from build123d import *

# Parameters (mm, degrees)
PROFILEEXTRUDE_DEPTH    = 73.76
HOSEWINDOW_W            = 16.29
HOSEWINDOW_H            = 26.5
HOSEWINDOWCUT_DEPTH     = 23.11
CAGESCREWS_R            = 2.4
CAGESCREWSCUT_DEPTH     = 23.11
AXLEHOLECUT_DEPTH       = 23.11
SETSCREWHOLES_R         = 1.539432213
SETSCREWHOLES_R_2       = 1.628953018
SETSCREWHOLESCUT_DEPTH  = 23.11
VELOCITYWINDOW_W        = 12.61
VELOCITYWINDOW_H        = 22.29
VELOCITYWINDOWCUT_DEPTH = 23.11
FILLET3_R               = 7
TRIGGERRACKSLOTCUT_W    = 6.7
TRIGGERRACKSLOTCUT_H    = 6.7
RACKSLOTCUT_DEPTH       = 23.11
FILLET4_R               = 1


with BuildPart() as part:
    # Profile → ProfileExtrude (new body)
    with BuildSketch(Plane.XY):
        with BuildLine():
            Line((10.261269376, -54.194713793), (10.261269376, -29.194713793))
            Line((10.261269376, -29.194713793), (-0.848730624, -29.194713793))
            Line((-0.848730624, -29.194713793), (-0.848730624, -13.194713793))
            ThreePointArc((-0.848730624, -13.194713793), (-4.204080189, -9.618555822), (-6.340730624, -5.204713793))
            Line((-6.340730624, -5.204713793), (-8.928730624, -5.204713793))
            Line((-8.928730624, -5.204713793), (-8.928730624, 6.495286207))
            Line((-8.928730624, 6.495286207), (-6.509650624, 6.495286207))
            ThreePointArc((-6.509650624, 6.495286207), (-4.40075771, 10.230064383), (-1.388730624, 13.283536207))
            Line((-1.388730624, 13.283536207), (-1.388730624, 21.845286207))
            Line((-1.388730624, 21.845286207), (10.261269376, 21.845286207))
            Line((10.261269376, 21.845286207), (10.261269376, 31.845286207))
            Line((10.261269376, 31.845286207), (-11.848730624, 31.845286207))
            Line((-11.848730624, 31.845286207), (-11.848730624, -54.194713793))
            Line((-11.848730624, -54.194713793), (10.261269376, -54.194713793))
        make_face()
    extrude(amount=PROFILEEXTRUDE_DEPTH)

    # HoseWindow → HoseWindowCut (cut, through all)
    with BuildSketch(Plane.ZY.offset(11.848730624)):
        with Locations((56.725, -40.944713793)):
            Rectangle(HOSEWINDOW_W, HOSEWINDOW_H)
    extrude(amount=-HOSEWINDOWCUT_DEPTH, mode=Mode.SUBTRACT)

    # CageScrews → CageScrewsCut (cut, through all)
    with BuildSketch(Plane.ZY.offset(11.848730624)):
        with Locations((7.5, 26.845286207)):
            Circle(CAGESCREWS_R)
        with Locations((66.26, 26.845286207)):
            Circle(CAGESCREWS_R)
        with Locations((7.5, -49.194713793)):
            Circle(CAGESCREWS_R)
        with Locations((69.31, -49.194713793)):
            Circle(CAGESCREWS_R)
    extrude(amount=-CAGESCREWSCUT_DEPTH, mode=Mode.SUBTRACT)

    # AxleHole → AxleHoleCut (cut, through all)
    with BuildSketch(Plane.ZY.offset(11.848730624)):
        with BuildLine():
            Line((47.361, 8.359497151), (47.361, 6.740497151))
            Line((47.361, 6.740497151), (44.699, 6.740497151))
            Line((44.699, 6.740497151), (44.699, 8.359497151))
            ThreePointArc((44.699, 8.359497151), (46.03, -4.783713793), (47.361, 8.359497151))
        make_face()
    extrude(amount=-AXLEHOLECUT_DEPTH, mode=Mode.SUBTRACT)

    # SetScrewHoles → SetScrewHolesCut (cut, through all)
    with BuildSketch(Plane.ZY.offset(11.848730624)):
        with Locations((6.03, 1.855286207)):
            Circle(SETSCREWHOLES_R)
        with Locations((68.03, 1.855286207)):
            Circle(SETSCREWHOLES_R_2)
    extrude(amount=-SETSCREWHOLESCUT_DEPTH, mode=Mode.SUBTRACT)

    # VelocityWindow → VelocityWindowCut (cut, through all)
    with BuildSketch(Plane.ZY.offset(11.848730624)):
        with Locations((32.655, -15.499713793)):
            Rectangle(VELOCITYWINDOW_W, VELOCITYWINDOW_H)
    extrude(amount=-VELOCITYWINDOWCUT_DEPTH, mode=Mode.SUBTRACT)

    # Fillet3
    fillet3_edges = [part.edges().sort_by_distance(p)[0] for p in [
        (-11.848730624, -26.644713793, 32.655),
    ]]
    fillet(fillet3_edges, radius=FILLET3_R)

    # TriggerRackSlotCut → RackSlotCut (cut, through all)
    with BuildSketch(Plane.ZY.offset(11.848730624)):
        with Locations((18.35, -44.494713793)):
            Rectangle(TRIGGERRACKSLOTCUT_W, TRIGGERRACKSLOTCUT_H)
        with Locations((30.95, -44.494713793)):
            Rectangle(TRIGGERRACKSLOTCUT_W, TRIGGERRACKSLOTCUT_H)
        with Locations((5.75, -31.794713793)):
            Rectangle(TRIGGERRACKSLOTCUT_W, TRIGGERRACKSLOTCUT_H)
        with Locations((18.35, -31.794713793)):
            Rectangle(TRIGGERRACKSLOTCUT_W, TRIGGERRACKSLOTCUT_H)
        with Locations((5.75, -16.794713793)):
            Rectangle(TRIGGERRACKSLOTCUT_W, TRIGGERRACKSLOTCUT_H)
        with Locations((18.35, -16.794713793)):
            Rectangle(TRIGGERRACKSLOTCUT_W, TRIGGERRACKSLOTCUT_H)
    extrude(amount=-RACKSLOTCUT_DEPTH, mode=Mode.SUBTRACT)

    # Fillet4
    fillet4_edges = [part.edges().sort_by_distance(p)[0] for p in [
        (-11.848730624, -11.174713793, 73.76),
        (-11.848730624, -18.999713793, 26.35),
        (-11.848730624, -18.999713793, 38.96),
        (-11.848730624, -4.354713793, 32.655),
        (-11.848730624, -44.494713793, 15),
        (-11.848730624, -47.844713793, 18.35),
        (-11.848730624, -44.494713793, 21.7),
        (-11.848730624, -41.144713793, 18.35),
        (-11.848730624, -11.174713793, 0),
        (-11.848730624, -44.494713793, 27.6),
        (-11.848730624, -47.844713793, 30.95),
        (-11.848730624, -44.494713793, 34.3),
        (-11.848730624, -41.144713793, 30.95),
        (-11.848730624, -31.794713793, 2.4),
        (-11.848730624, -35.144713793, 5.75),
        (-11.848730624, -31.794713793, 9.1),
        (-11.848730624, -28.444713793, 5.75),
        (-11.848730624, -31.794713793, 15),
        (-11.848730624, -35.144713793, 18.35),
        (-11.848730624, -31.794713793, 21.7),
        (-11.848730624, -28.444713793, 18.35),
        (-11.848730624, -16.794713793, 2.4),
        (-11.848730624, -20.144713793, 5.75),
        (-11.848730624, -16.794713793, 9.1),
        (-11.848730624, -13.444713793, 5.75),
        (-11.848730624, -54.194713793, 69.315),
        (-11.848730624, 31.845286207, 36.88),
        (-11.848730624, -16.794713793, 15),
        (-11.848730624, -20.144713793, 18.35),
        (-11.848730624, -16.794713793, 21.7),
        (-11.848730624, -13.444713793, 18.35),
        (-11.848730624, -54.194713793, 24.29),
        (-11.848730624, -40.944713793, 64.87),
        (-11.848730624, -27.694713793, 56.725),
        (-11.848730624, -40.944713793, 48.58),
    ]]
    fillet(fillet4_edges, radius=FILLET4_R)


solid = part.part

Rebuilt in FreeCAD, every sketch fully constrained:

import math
import FreeCAD as App
import Part
import Sketcher

V = App.Vector
Q = App.Units.Quantity


def edges_at(feature, points):
    """Names of the edges that pass closest to the given points."""
    edges = feature.Shape.Edges
    near = lambda p: min(range(len(edges)), key=lambda i: edges[i].distToShape(Part.Vertex(*p))[0])
    return sorted({f"Edge{near(p) + 1}" for p in points})


def add_polygon(sketch, points):
    """Adds a closed chain of lines whose ends are joined by coincident constraints."""
    first, n = sketch.GeometryCount, len(points)
    for a, b in zip(points, points[1:] + points[:1]):
        sketch.addGeometry(Part.LineSegment(App.Vector(*a, 0), App.Vector(*b, 0)), False)
    for i in range(n):
        sketch.addConstraint(Sketcher.Constraint("Coincident", first + i, 2, first + (i + 1) % n, 1))

doc = App.newDocument("Part")
body = doc.addObject("PartDesign::Body", "Body")

sketch1 = doc.addObject("Sketcher::SketchObject", "Sketch")
body.addObject(sketch1)
sketch1.AttachmentSupport = (doc.XY_Plane, [""])
sketch1.MapMode = "FlatFace"
sketch1.addGeometry(Part.LineSegment(V(10.3, -54.2, 0), V(10.3, -29.2, 0)), False)
sketch1.addGeometry(Part.LineSegment(V(10.3, -29.2, 0), V(-0.8, -29.2, 0)), False)
sketch1.addGeometry(Part.LineSegment(V(-0.8, -29.2, 0), V(-0.8, -13.2, 0)), False)
sketch1.addGeometry(Part.ArcOfCircle(Part.Circle(V(9.2, -0.4, 0), V(0, 0, 1), 16.3), math.radians(-163), math.radians(-128)), False)
sketch1.addGeometry(Part.LineSegment(V(-6.3, -5.2, 0), V(-8.9, -5.2, 0)), False)
sketch1.addGeometry(Part.LineSegment(V(-8.9, -5.2, 0), V(-8.9, 6.5, 0)), False)
sketch1.addGeometry(Part.LineSegment(V(-8.9, 6.5, 0), V(-6.5, 6.5, 0)), False)
sketch1.addGeometry(Part.ArcOfCircle(Part.Circle(V(8.6, 0.4, 0), V(0, 0, 1), 16.3), math.radians(128), math.radians(158)), False)
sketch1.addGeometry(Part.LineSegment(V(-1.4, 13.3, 0), V(-1.4, 21.8, 0)), False)
sketch1.addGeometry(Part.LineSegment(V(-1.4, 21.8, 0), V(10.3, 21.8, 0)), False)
sketch1.addGeometry(Part.LineSegment(V(10.3, 21.8, 0), V(10.3, 31.8, 0)), False)
sketch1.addGeometry(Part.LineSegment(V(10.3, 31.8, 0), V(-11.8, 31.8, 0)), False)
sketch1.addGeometry(Part.LineSegment(V(-11.8, 31.8, 0), V(-11.8, -54.2, 0)), False)
sketch1.addGeometry(Part.LineSegment(V(-11.8, -54.2, 0), V(10.3, -54.2, 0)), False)
sketch1.addConstraint(Sketcher.Constraint("Coincident", 0, 2, 1, 1))
sketch1.addConstraint(Sketcher.Constraint("Coincident", 1, 2, 2, 1))
sketch1.addConstraint(Sketcher.Constraint("Coincident", 2, 2, 3, 2))
sketch1.addConstraint(Sketcher.Constraint("Coincident", 3, 1, 4, 1))
sketch1.addConstraint(Sketcher.Constraint("Coincident", 4, 2, 5, 1))
sketch1.addConstraint(Sketcher.Constraint("Coincident", 5, 2, 6, 1))
sketch1.addConstraint(Sketcher.Constraint("Coincident", 6, 2, 7, 2))
sketch1.addConstraint(Sketcher.Constraint("Coincident", 7, 1, 8, 1))
sketch1.addConstraint(Sketcher.Constraint("Coincident", 8, 2, 9, 1))
sketch1.addConstraint(Sketcher.Constraint("Coincident", 9, 2, 10, 1))
sketch1.addConstraint(Sketcher.Constraint("Coincident", 10, 2, 11, 1))
sketch1.addConstraint(Sketcher.Constraint("Coincident", 11, 2, 12, 1))
sketch1.addConstraint(Sketcher.Constraint("Coincident", 12, 2, 13, 1))
sketch1.addConstraint(Sketcher.Constraint("Coincident", 13, 2, 0, 1))
sketch1.addConstraint(Sketcher.Constraint("Vertical", 0))
sketch1.addConstraint(Sketcher.Constraint("Horizontal", 1))
sketch1.addConstraint(Sketcher.Constraint("Vertical", 2))
sketch1.addConstraint(Sketcher.Constraint("Horizontal", 4))
sketch1.addConstraint(Sketcher.Constraint("Vertical", 5))
sketch1.addConstraint(Sketcher.Constraint("Horizontal", 6))
sketch1.addConstraint(Sketcher.Constraint("Vertical", 8))
sketch1.addConstraint(Sketcher.Constraint("Horizontal", 9))
sketch1.addConstraint(Sketcher.Constraint("Vertical", 10))
sketch1.addConstraint(Sketcher.Constraint("Horizontal", 11))
sketch1.addConstraint(Sketcher.Constraint("Vertical", 12))
sketch1.addConstraint(Sketcher.Constraint("Horizontal", 13))
sketch1.addConstraint(Sketcher.Constraint("Equal", 3, 7))
sketch1.addConstraint(Sketcher.Constraint("Vertical", 0, 2, 9, 2))
sketch1.addConstraint(Sketcher.Constraint("DistanceY", 0, 1, 0, 2, Q("25 mm")))
sketch1.addConstraint(Sketcher.Constraint("DistanceY", 2, 1, 2, 2, Q("16 mm")))
sketch1.addConstraint(Sketcher.Constraint("DistanceY", 10, 1, 10, 2, Q("10 mm")))
sketch1.addConstraint(Sketcher.Constraint("DistanceY", 5, 1, 5, 2, Q("11.7 mm")))
sketch1.addConstraint(Sketcher.Constraint("Radius", 3, Q("16.261 mm")))
sketch1.addConstraint(Sketcher.Constraint("DistanceX", 12, 2, 1, 2, Q("11 mm")))
sketch1.addConstraint(Sketcher.Constraint("DistanceX", 1, 2, 1, 1, Q("11.11 mm")))
sketch1.addConstraint(Sketcher.Constraint("DistanceX", 9, 1, 9, 2, Q("11.65 mm")))
sketch1.addConstraint(Sketcher.Constraint("DistanceY", 12, 2, 12, 1, Q("86.04 mm")))
sketch1.addConstraint(Sketcher.Constraint("DistanceX", 4, 2, 4, 1, Q("2.588 mm")))
sketch1.addConstraint(Sketcher.Constraint("DistanceY", 2, 2, 3, 1, Q("7.99 mm")))
sketch1.addConstraint(Sketcher.Constraint("DistanceX", 4, 2, 2, 2, Q("8.08 mm")))
sketch1.addConstraint(Sketcher.Constraint("DistanceX", 6, 1, 6, 2, Q("2.41908 mm")))
sketch1.addConstraint(Sketcher.Constraint("DistanceY", 8, 1, 8, 2, Q("8.56175 mm")))
sketch1.addConstraint(Sketcher.Constraint("DistanceX", -1, 1, 7, 3, Q("8.580699 mm")))
sketch1.addConstraint(Sketcher.Constraint("DistanceY", 3, 3, -1, 1, Q("0.407512 mm")))
pad1 = doc.addObject("PartDesign::Pad", "Pad")
body.addObject(pad1)
pad1.Profile = sketch1
pad1.Length = 73.76

sketch2 = doc.addObject("Sketcher::SketchObject", "Sketch001")
body.addObject(sketch2)
sketch2.AttachmentSupport = (doc.YZ_Plane, [""])
sketch2.MapMode = "FlatFace"
sketch2.AttachmentOffset = App.Placement(V(0, 0, -11.848731), App.Rotation())
add_polygon(sketch2, [(-28, 49), (-54, 49), (-54, 65), (-28, 65)])
sketch2.addConstraint(Sketcher.Constraint("Horizontal", 0))
sketch2.addConstraint(Sketcher.Constraint("Vertical", 1))
sketch2.addConstraint(Sketcher.Constraint("Horizontal", 2))
sketch2.addConstraint(Sketcher.Constraint("Vertical", 3))
sketch2.addConstraint(Sketcher.Constraint("DistanceX", 0, 2, 0, 1, Q("26.5 mm")))
sketch2.addConstraint(Sketcher.Constraint("DistanceY", 1, 1, 1, 2, Q("16.29 mm")))
sketch2.addConstraint(Sketcher.Constraint("DistanceY", -1, 1, 0, 2, Q("48.58 mm")))
sketch2.addConstraint(Sketcher.Constraint("DistanceX", 0, 2, -1, 1, Q("54.194714 mm")))
pocket1 = doc.addObject("PartDesign::Pocket", "Pocket")
body.addObject(pocket1)
pocket1.Profile = sketch2
pocket1.Type = "ThroughAll"
pocket1.Reversed = True

sketch3 = doc.addObject("Sketcher::SketchObject", "Sketch002")
body.addObject(sketch3)
sketch3.AttachmentSupport = (doc.YZ_Plane, [""])
sketch3.MapMode = "FlatFace"
sketch3.AttachmentOffset = App.Placement(V(0, 0, -11.848731), App.Rotation())
sketch3.addGeometry(Part.Circle(V(26.8, 7.5, 0), V(0, 0, 1), 2.4), False)
sketch3.addGeometry(Part.Circle(V(26.8, 66.3, 0), V(0, 0, 1), 2.4), False)
sketch3.addGeometry(Part.Circle(V(-49.2, 7.5, 0), V(0, 0, 1), 2.4), False)
sketch3.addGeometry(Part.Circle(V(-49.2, 69.3, 0), V(0, 0, 1), 2.4), False)
sketch3.addConstraint(Sketcher.Constraint("Equal", 0, 1))
sketch3.addConstraint(Sketcher.Constraint("Equal", 1, 2))
sketch3.addConstraint(Sketcher.Constraint("Equal", 2, 3))
sketch3.addConstraint(Sketcher.Constraint("Horizontal", 0, 3, 2, 3))
sketch3.addConstraint(Sketcher.Constraint("Vertical", 0, 3, 1, 3))
sketch3.addConstraint(Sketcher.Constraint("Vertical", 2, 3, 3, 3))
sketch3.addConstraint(Sketcher.Constraint("Diameter", 0, Q("4.8 mm")))
sketch3.addConstraint(Sketcher.Constraint("DistanceY", -1, 1, 0, 3, Q("7.5 mm")))
sketch3.addConstraint(Sketcher.Constraint("DistanceY", -1, 1, 1, 3, Q("66.26 mm")))
sketch3.addConstraint(Sketcher.Constraint("DistanceY", -1, 1, 3, 3, Q("69.31 mm")))
sketch3.addConstraint(Sketcher.Constraint("DistanceX", 2, 3, 0, 3, Q("76.04 mm")))
sketch3.addConstraint(Sketcher.Constraint("DistanceX", -1, 1, 0, 3, Q("26.845286 mm")))
pocket2 = doc.addObject("PartDesign::Pocket", "Pocket001")
body.addObject(pocket2)
pocket2.Profile = sketch3
pocket2.Type = "ThroughAll"
pocket2.Reversed = True

sketch4 = doc.addObject("Sketcher::SketchObject", "Sketch003")
body.addObject(sketch4)
sketch4.AttachmentSupport = (doc.YZ_Plane, [""])
sketch4.MapMode = "FlatFace"
sketch4.AttachmentOffset = App.Placement(V(0, 0, -11.848731), App.Rotation())
sketch4.addGeometry(Part.LineSegment(V(8.4, 47.4, 0), V(6.7, 47.4, 0)), False)
sketch4.addGeometry(Part.LineSegment(V(6.7, 47.4, 0), V(6.7, 44.7, 0)), False)
sketch4.addGeometry(Part.LineSegment(V(6.7, 44.7, 0), V(8.4, 44.7, 0)), False)
sketch4.addGeometry(Part.ArcOfCircle(Part.Circle(V(1.9, 46, 0), V(0, 0, 1), 6.6), math.radians(12), math.radians(348)), False)
sketch4.addConstraint(Sketcher.Constraint("Coincident", 0, 2, 1, 1))
sketch4.addConstraint(Sketcher.Constraint("Coincident", 1, 2, 2, 1))
sketch4.addConstraint(Sketcher.Constraint("Coincident", 2, 2, 3, 2))
sketch4.addConstraint(Sketcher.Constraint("Coincident", 3, 1, 0, 1))
sketch4.addConstraint(Sketcher.Constraint("Horizontal", 0))
sketch4.addConstraint(Sketcher.Constraint("Vertical", 1))
sketch4.addConstraint(Sketcher.Constraint("Horizontal", 2))
sketch4.addConstraint(Sketcher.Constraint("Vertical", 2, 2, 3, 1))
sketch4.addConstraint(Sketcher.Constraint("Radius", 3, Q("6.639 mm")))
sketch4.addConstraint(Sketcher.Constraint("DistanceX", 0, 2, 0, 1, Q("1.619 mm")))
sketch4.addConstraint(Sketcher.Constraint("DistanceY", 1, 2, 1, 1, Q("2.662 mm")))
sketch4.addConstraint(Sketcher.Constraint("DistanceY", -1, 1, 3, 3, Q("46.03 mm")))
sketch4.addConstraint(Sketcher.Constraint("DistanceX", -1, 1, 3, 3, Q("1.855286 mm")))
pocket3 = doc.addObject("PartDesign::Pocket", "Pocket002")
body.addObject(pocket3)
pocket3.Profile = sketch4
pocket3.Type = "ThroughAll"
pocket3.Reversed = True

sketch5 = doc.addObject("Sketcher::SketchObject", "Sketch004")
body.addObject(sketch5)
sketch5.AttachmentSupport = (doc.YZ_Plane, [""])
sketch5.MapMode = "FlatFace"
sketch5.AttachmentOffset = App.Placement(V(0, 0, -11.848731), App.Rotation())
sketch5.addGeometry(Part.Circle(V(1.9, 6, 0), V(0, 0, 1), 1.5), False)
sketch5.addGeometry(Part.Circle(V(1.9, 68, 0), V(0, 0, 1), 1.6), False)
sketch5.addConstraint(Sketcher.Constraint("Vertical", 0, 3, 1, 3))
sketch5.addConstraint(Sketcher.Constraint("DistanceY", 0, 3, 1, 3, Q("62 mm")))
sketch5.addConstraint(Sketcher.Constraint("DistanceY", -1, 1, 0, 3, Q("6.03 mm")))
sketch5.addConstraint(Sketcher.Constraint("Diameter", 0, Q("3.078864 mm")))
sketch5.addConstraint(Sketcher.Constraint("Diameter", 1, Q("3.257906 mm")))
sketch5.addConstraint(Sketcher.Constraint("DistanceX", -1, 1, 0, 3, Q("1.855286 mm")))
pocket4 = doc.addObject("PartDesign::Pocket", "Pocket003")
body.addObject(pocket4)
pocket4.Profile = sketch5
pocket4.Type = "ThroughAll"
pocket4.Reversed = True

sketch6 = doc.addObject("Sketcher::SketchObject", "Sketch005")
body.addObject(sketch6)
sketch6.AttachmentSupport = (doc.YZ_Plane, [""])
sketch6.MapMode = "FlatFace"
sketch6.AttachmentOffset = App.Placement(V(0, 0, -11.848731), App.Rotation())
add_polygon(sketch6, [(-4, 26), (-27, 26), (-27, 39), (-4, 39)])
sketch6.addConstraint(Sketcher.Constraint("Horizontal", 0))
sketch6.addConstraint(Sketcher.Constraint("Vertical", 1))
sketch6.addConstraint(Sketcher.Constraint("Horizontal", 2))
sketch6.addConstraint(Sketcher.Constraint("Vertical", 3))
sketch6.addConstraint(Sketcher.Constraint("DistanceX", 0, 2, 0, 1, Q("22.29 mm")))
sketch6.addConstraint(Sketcher.Constraint("DistanceY", 1, 1, 1, 2, Q("12.61 mm")))
sketch6.addConstraint(Sketcher.Constraint("DistanceY", -1, 1, 0, 2, Q("26.35 mm")))
sketch6.addConstraint(Sketcher.Constraint("DistanceX", 0, 2, -1, 1, Q("26.644714 mm")))
pocket5 = doc.addObject("PartDesign::Pocket", "Pocket004")
body.addObject(pocket5)
pocket5.Profile = sketch6
pocket5.Type = "ThroughAll"
pocket5.Reversed = True
doc.recompute()

fillet = doc.addObject("PartDesign::Fillet", "Fillet")
body.addObject(fillet)
fillet.Base = (pocket5, edges_at(pocket5, [(-11.849, -26.645, 32.655)]))
fillet.Radius = 7

sketch7 = doc.addObject("Sketcher::SketchObject", "Sketch006")
body.addObject(sketch7)
sketch7.AttachmentSupport = (doc.YZ_Plane, [""])
sketch7.MapMode = "FlatFace"
sketch7.AttachmentOffset = App.Placement(V(0, 0, -11.848731), App.Rotation())
add_polygon(sketch7, [(-41, 15), (-48, 15), (-48, 22), (-41, 22)])
add_polygon(sketch7, [(-41, 28), (-48, 28), (-48, 34), (-41, 34)])
add_polygon(sketch7, [(-28, 2), (-35, 2), (-35, 9), (-28, 9)])
add_polygon(sketch7, [(-28, 15), (-35, 15), (-35, 22), (-28, 22)])
add_polygon(sketch7, [(-13, 2), (-20, 2), (-20, 9), (-13, 9)])
add_polygon(sketch7, [(-13, 15), (-20, 15), (-20, 22), (-13, 22)])
sketch7.addConstraint(Sketcher.Constraint("Horizontal", 0))
sketch7.addConstraint(Sketcher.Constraint("Vertical", 1))
sketch7.addConstraint(Sketcher.Constraint("Horizontal", 2))
sketch7.addConstraint(Sketcher.Constraint("Vertical", 3))
sketch7.addConstraint(Sketcher.Constraint("Horizontal", 4))
sketch7.addConstraint(Sketcher.Constraint("Vertical", 5))
sketch7.addConstraint(Sketcher.Constraint("Horizontal", 6))
sketch7.addConstraint(Sketcher.Constraint("Vertical", 7))
sketch7.addConstraint(Sketcher.Constraint("Horizontal", 8))
sketch7.addConstraint(Sketcher.Constraint("Vertical", 9))
sketch7.addConstraint(Sketcher.Constraint("Horizontal", 10))
sketch7.addConstraint(Sketcher.Constraint("Vertical", 11))
sketch7.addConstraint(Sketcher.Constraint("Horizontal", 12))
sketch7.addConstraint(Sketcher.Constraint("Vertical", 13))
sketch7.addConstraint(Sketcher.Constraint("Horizontal", 14))
sketch7.addConstraint(Sketcher.Constraint("Vertical", 15))
sketch7.addConstraint(Sketcher.Constraint("Horizontal", 16))
sketch7.addConstraint(Sketcher.Constraint("Vertical", 17))
sketch7.addConstraint(Sketcher.Constraint("Horizontal", 18))
sketch7.addConstraint(Sketcher.Constraint("Vertical", 19))
sketch7.addConstraint(Sketcher.Constraint("Horizontal", 20))
sketch7.addConstraint(Sketcher.Constraint("Vertical", 21))
sketch7.addConstraint(Sketcher.Constraint("Horizontal", 22))
sketch7.addConstraint(Sketcher.Constraint("Vertical", 23))
sketch7.addConstraint(Sketcher.Constraint("Horizontal", 3, 2, 12, 2))
sketch7.addConstraint(Sketcher.Constraint("Horizontal", 2, 2, 13, 2))
sketch7.addConstraint(Sketcher.Constraint("Horizontal", 11, 2, 16, 2))
sketch7.addConstraint(Sketcher.Constraint("Horizontal", 10, 2, 17, 2))
sketch7.addConstraint(Sketcher.Constraint("Horizontal", 15, 2, 20, 2))
sketch7.addConstraint(Sketcher.Constraint("Horizontal", 14, 2, 21, 2))
sketch7.addConstraint(Sketcher.Constraint("Vertical", 1, 2, 4, 2))
sketch7.addConstraint(Sketcher.Constraint("Vertical", 3, 2, 6, 2))
sketch7.addConstraint(Sketcher.Constraint("Vertical", 9, 2, 12, 2))
sketch7.addConstraint(Sketcher.Constraint("Vertical", 11, 2, 14, 2))
sketch7.addConstraint(Sketcher.Constraint("Vertical", 17, 2, 20, 2))
sketch7.addConstraint(Sketcher.Constraint("Vertical", 19, 2, 22, 2))
sketch7.addConstraint(Sketcher.Constraint("Equal", 6, 8))
sketch7.addConstraint(Sketcher.Constraint("Equal", 14, 16))
sketch7.addConstraint(Sketcher.Constraint("Equal", 22, 1))
sketch7.addConstraint(Sketcher.Constraint("Equal", 3, 5))
sketch7.addConstraint(Sketcher.Constraint("Equal", 7, 9))
sketch7.addConstraint(Sketcher.Constraint("DistanceX", 0, 2, 0, 1, Q("6.7 mm")))
sketch7.addConstraint(Sketcher.Constraint("DistanceY", -1, 1, 0, 2, Q("15 mm")))
sketch7.addConstraint(Sketcher.Constraint("DistanceX", 3, 2, 8, 2, Q("6 mm")))
sketch7.addConstraint(Sketcher.Constraint("DistanceX", 8, 2, 16, 2, Q("15 mm")))
sketch7.addConstraint(Sketcher.Constraint("DistanceY", -1, 1, 4, 2, Q("27.6 mm")))
sketch7.addConstraint(Sketcher.Constraint("DistanceY", -1, 1, 8, 2, Q("2.4 mm")))
sketch7.addConstraint(Sketcher.Constraint("DistanceX", 0, 2, -1, 1, Q("47.844714 mm")))
pocket6 = doc.addObject("PartDesign::Pocket", "Pocket005")
body.addObject(pocket6)
pocket6.Profile = sketch7
pocket6.Type = "ThroughAll"
pocket6.Reversed = True
doc.recompute()

fillet2 = doc.addObject("PartDesign::Fillet", "Fillet001")
body.addObject(fillet2)
fillet2.Base = (pocket6, edges_at(pocket6, [
    (-11.849, -11.175, 73.76),
    (-11.849, -19, 26.35),
    (-11.849, -19, 38.96),
    (-11.849, -4.355, 32.655),
    (-11.849, -44.495, 15),
    (-11.849, -47.845, 18.35),
    (-11.849, -44.495, 21.7),
    (-11.849, -41.145, 18.35),
    (-11.849, -11.175, 0),
    (-11.849, -44.495, 27.6),
    (-11.849, -47.845, 30.95),
    (-11.849, -44.495, 34.3),
    (-11.849, -41.145, 30.95),
    (-11.849, -31.795, 2.4),
    (-11.849, -35.145, 5.75),
    (-11.849, -31.795, 9.1),
    (-11.849, -28.445, 5.75),
    (-11.849, -31.795, 15),
    (-11.849, -35.145, 18.35),
    (-11.849, -31.795, 21.7),
    (-11.849, -28.445, 18.35),
    (-11.849, -16.795, 2.4),
    (-11.849, -20.145, 5.75),
    (-11.849, -16.795, 9.1),
    (-11.849, -13.445, 5.75),
    (-11.849, -54.195, 69.315),
    (-11.849, 31.845, 36.88),
    (-11.849, -16.795, 15),
    (-11.849, -20.145, 18.35),
    (-11.849, -16.795, 21.7),
    (-11.849, -13.445, 18.35),
    (-11.849, -54.195, 24.29),
    (-11.849, -40.945, 64.87),
    (-11.849, -27.695, 56.725),
    (-11.849, -40.945, 48.58),
]))
fillet2.Radius = 1

doc.recompute()
